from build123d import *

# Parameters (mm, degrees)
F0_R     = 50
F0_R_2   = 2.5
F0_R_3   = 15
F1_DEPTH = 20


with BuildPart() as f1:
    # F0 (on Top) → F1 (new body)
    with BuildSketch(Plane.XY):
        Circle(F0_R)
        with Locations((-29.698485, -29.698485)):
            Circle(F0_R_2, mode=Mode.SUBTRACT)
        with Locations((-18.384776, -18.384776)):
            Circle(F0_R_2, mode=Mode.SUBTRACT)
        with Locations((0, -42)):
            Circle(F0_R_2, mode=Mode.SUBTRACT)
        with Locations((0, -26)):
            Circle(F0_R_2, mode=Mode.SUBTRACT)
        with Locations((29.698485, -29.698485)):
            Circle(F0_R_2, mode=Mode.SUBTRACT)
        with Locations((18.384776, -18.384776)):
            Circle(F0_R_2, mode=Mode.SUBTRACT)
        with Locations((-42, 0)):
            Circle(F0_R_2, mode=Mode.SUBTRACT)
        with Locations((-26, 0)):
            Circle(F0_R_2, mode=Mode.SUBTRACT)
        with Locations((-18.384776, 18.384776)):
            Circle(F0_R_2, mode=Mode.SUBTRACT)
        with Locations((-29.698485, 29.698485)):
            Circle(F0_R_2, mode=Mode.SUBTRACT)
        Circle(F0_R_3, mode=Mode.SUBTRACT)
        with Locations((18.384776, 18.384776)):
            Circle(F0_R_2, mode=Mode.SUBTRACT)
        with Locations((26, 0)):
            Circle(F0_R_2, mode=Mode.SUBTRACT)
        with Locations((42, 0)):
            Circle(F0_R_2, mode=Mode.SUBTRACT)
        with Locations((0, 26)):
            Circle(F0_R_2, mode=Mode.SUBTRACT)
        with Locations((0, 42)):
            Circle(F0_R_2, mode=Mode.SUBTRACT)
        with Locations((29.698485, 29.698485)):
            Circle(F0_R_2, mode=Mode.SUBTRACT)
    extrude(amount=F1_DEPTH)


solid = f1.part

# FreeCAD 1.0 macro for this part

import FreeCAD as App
import Part
import Sketcher
from FreeCAD import Vector
Q = App.Units.Quantity

doc = App.newDocument("Part")
body = doc.addObject("PartDesign::Body", "Body")

# Sketch on XY plane
sketch1 = doc.addObject("Sketcher::SketchObject", "Sketch")
body.addObject(sketch1)
sketch1.AttachmentSupport = (doc.XY_Plane, [""])
sketch1.MapMode = "FlatFace"
sketch1.addGeometry([
    Part.Circle(Vector(0, 0, 0), Vector(0, 0, 1), 50),  # 0
    Part.Circle(Vector(-29.7, -29.7, 0), Vector(0, 0, 1), 2.5),  # 1
    Part.Circle(Vector(-18.4, -18.4, 0), Vector(0, 0, 1), 2.5),  # 2
    Part.Circle(Vector(0, -42, 0), Vector(0, 0, 1), 2.5),  # 3
    Part.Circle(Vector(0, -26, 0), Vector(0, 0, 1), 2.5),  # 4
    Part.Circle(Vector(29.7, -29.7, 0), Vector(0, 0, 1), 2.5),  # 5
    Part.Circle(Vector(18.4, -18.4, 0), Vector(0, 0, 1), 2.5),  # 6
    Part.Circle(Vector(-42, 0, 0), Vector(0, 0, 1), 2.5),  # 7
    Part.Circle(Vector(-26, 0, 0), Vector(0, 0, 1), 2.5),  # 8
    Part.Circle(Vector(-18.4, 18.4, 0), Vector(0, 0, 1), 2.5),  # 9
    Part.Circle(Vector(-29.7, 29.7, 0), Vector(0, 0, 1), 2.5),  # 10
    Part.Circle(Vector(0, 0, 0), Vector(0, 0, 1), 15),  # 11
    Part.Circle(Vector(18.4, 18.4, 0), Vector(0, 0, 1), 2.5),  # 12
    Part.Circle(Vector(26, 0, 0), Vector(0, 0, 1), 2.5),  # 13
    Part.Circle(Vector(42, 0, 0), Vector(0, 0, 1), 2.5),  # 14
    Part.Circle(Vector(0, 26, 0), Vector(0, 0, 1), 2.5),  # 15
    Part.Circle(Vector(0, 42, 0), Vector(0, 0, 1), 2.5),  # 16
    Part.Circle(Vector(29.7, 29.7, 0), Vector(0, 0, 1), 2.5),  # 17
], False)
sketch1.addConstraint([
    Sketcher.Constraint("Coincident", 0, 3, -1, 1),
    Sketcher.Constraint("Coincident", 11, 3, -1, 1),
    Sketcher.Constraint("Equal", 1, 2),
    Sketcher.Constraint("Equal", 2, 3),
    Sketcher.Constraint("Equal", 3, 4),
    Sketcher.Constraint("Equal", 4, 5),
    Sketcher.Constraint("Equal", 5, 6),
    Sketcher.Constraint("Equal", 6, 7),
    Sketcher.Constraint("Equal", 7, 8),
    Sketcher.Constraint("Equal", 8, 9),
    Sketcher.Constraint("Equal", 9, 10),
    Sketcher.Constraint("Equal", 10, 12),
    Sketcher.Constraint("Equal", 12, 13),
    Sketcher.Constraint("Equal", 13, 14),
    Sketcher.Constraint("Equal", 14, 15),
    Sketcher.Constraint("Equal", 15, 16),
    Sketcher.Constraint("Equal", 16, 17),
    Sketcher.Constraint("Symmetric", 6, 3, 9, 3, -1, 1),
    Sketcher.Constraint("Symmetric", 5, 3, 10, 3, -1, 1),
    Sketcher.Constraint("Symmetric", 2, 3, 12, 3, -1, 1),
    Sketcher.Constraint("Symmetric", 8, 3, 13, 3, -1, 1),
    Sketcher.Constraint("Symmetric", 7, 3, 14, 3, -1, 1),
    Sketcher.Constraint("Symmetric", 4, 3, 15, 3, -1, 1),
    Sketcher.Constraint("Symmetric", 3, 3, 16, 3, -1, 1),
    Sketcher.Constraint("Symmetric", 1, 3, 17, 3, -1, 1),
    Sketcher.Constraint("Symmetric", 1, 3, 5, 3, -2),
    Sketcher.Constraint("Symmetric", 2, 3, 6, 3, -2),
    Sketcher.Constraint("PointOnObject", 3, 3, -2),
    Sketcher.Constraint("PointOnObject", 4, 3, -2),
    Sketcher.Constraint("PointOnObject", 7, 3, -1),
    Sketcher.Constraint("PointOnObject", 8, 3, -1),
    Sketcher.Constraint("Diameter", 0, Q("100 mm")),
    Sketcher.Constraint("Diameter", 1, Q("5 mm")),
    Sketcher.Constraint("Diameter", 11, Q("30 mm")),
    Sketcher.Constraint("DistanceY", 3, 3, -1, 1, Q("42 mm")),
    Sketcher.Constraint("DistanceY", 4, 3, -1, 1, Q("26 mm")),
    Sketcher.Constraint("DistanceX", 7, 3, -1, 1, Q("42 mm")),
    Sketcher.Constraint("DistanceX", 8, 3, -1, 1, Q("26 mm")),
    Sketcher.Constraint("DistanceX", 1, 3, 2, 3, Q("11.313709 mm")),
    Sketcher.Constraint("DistanceY", 1, 3, 2, 3, Q("11.313709 mm")),
    Sketcher.Constraint("DistanceX", 2, 3, 5, 3, Q("48.083261 mm")),
    Sketcher.Constraint("DistanceY", 2, 3, 9, 3, Q("36.769552 mm")),
])
pad1 = doc.addObject("PartDesign::Pad", "Pad")
body.addObject(pad1)
pad1.Profile = sketch1
pad1.Length = 20

doc.recompute()
